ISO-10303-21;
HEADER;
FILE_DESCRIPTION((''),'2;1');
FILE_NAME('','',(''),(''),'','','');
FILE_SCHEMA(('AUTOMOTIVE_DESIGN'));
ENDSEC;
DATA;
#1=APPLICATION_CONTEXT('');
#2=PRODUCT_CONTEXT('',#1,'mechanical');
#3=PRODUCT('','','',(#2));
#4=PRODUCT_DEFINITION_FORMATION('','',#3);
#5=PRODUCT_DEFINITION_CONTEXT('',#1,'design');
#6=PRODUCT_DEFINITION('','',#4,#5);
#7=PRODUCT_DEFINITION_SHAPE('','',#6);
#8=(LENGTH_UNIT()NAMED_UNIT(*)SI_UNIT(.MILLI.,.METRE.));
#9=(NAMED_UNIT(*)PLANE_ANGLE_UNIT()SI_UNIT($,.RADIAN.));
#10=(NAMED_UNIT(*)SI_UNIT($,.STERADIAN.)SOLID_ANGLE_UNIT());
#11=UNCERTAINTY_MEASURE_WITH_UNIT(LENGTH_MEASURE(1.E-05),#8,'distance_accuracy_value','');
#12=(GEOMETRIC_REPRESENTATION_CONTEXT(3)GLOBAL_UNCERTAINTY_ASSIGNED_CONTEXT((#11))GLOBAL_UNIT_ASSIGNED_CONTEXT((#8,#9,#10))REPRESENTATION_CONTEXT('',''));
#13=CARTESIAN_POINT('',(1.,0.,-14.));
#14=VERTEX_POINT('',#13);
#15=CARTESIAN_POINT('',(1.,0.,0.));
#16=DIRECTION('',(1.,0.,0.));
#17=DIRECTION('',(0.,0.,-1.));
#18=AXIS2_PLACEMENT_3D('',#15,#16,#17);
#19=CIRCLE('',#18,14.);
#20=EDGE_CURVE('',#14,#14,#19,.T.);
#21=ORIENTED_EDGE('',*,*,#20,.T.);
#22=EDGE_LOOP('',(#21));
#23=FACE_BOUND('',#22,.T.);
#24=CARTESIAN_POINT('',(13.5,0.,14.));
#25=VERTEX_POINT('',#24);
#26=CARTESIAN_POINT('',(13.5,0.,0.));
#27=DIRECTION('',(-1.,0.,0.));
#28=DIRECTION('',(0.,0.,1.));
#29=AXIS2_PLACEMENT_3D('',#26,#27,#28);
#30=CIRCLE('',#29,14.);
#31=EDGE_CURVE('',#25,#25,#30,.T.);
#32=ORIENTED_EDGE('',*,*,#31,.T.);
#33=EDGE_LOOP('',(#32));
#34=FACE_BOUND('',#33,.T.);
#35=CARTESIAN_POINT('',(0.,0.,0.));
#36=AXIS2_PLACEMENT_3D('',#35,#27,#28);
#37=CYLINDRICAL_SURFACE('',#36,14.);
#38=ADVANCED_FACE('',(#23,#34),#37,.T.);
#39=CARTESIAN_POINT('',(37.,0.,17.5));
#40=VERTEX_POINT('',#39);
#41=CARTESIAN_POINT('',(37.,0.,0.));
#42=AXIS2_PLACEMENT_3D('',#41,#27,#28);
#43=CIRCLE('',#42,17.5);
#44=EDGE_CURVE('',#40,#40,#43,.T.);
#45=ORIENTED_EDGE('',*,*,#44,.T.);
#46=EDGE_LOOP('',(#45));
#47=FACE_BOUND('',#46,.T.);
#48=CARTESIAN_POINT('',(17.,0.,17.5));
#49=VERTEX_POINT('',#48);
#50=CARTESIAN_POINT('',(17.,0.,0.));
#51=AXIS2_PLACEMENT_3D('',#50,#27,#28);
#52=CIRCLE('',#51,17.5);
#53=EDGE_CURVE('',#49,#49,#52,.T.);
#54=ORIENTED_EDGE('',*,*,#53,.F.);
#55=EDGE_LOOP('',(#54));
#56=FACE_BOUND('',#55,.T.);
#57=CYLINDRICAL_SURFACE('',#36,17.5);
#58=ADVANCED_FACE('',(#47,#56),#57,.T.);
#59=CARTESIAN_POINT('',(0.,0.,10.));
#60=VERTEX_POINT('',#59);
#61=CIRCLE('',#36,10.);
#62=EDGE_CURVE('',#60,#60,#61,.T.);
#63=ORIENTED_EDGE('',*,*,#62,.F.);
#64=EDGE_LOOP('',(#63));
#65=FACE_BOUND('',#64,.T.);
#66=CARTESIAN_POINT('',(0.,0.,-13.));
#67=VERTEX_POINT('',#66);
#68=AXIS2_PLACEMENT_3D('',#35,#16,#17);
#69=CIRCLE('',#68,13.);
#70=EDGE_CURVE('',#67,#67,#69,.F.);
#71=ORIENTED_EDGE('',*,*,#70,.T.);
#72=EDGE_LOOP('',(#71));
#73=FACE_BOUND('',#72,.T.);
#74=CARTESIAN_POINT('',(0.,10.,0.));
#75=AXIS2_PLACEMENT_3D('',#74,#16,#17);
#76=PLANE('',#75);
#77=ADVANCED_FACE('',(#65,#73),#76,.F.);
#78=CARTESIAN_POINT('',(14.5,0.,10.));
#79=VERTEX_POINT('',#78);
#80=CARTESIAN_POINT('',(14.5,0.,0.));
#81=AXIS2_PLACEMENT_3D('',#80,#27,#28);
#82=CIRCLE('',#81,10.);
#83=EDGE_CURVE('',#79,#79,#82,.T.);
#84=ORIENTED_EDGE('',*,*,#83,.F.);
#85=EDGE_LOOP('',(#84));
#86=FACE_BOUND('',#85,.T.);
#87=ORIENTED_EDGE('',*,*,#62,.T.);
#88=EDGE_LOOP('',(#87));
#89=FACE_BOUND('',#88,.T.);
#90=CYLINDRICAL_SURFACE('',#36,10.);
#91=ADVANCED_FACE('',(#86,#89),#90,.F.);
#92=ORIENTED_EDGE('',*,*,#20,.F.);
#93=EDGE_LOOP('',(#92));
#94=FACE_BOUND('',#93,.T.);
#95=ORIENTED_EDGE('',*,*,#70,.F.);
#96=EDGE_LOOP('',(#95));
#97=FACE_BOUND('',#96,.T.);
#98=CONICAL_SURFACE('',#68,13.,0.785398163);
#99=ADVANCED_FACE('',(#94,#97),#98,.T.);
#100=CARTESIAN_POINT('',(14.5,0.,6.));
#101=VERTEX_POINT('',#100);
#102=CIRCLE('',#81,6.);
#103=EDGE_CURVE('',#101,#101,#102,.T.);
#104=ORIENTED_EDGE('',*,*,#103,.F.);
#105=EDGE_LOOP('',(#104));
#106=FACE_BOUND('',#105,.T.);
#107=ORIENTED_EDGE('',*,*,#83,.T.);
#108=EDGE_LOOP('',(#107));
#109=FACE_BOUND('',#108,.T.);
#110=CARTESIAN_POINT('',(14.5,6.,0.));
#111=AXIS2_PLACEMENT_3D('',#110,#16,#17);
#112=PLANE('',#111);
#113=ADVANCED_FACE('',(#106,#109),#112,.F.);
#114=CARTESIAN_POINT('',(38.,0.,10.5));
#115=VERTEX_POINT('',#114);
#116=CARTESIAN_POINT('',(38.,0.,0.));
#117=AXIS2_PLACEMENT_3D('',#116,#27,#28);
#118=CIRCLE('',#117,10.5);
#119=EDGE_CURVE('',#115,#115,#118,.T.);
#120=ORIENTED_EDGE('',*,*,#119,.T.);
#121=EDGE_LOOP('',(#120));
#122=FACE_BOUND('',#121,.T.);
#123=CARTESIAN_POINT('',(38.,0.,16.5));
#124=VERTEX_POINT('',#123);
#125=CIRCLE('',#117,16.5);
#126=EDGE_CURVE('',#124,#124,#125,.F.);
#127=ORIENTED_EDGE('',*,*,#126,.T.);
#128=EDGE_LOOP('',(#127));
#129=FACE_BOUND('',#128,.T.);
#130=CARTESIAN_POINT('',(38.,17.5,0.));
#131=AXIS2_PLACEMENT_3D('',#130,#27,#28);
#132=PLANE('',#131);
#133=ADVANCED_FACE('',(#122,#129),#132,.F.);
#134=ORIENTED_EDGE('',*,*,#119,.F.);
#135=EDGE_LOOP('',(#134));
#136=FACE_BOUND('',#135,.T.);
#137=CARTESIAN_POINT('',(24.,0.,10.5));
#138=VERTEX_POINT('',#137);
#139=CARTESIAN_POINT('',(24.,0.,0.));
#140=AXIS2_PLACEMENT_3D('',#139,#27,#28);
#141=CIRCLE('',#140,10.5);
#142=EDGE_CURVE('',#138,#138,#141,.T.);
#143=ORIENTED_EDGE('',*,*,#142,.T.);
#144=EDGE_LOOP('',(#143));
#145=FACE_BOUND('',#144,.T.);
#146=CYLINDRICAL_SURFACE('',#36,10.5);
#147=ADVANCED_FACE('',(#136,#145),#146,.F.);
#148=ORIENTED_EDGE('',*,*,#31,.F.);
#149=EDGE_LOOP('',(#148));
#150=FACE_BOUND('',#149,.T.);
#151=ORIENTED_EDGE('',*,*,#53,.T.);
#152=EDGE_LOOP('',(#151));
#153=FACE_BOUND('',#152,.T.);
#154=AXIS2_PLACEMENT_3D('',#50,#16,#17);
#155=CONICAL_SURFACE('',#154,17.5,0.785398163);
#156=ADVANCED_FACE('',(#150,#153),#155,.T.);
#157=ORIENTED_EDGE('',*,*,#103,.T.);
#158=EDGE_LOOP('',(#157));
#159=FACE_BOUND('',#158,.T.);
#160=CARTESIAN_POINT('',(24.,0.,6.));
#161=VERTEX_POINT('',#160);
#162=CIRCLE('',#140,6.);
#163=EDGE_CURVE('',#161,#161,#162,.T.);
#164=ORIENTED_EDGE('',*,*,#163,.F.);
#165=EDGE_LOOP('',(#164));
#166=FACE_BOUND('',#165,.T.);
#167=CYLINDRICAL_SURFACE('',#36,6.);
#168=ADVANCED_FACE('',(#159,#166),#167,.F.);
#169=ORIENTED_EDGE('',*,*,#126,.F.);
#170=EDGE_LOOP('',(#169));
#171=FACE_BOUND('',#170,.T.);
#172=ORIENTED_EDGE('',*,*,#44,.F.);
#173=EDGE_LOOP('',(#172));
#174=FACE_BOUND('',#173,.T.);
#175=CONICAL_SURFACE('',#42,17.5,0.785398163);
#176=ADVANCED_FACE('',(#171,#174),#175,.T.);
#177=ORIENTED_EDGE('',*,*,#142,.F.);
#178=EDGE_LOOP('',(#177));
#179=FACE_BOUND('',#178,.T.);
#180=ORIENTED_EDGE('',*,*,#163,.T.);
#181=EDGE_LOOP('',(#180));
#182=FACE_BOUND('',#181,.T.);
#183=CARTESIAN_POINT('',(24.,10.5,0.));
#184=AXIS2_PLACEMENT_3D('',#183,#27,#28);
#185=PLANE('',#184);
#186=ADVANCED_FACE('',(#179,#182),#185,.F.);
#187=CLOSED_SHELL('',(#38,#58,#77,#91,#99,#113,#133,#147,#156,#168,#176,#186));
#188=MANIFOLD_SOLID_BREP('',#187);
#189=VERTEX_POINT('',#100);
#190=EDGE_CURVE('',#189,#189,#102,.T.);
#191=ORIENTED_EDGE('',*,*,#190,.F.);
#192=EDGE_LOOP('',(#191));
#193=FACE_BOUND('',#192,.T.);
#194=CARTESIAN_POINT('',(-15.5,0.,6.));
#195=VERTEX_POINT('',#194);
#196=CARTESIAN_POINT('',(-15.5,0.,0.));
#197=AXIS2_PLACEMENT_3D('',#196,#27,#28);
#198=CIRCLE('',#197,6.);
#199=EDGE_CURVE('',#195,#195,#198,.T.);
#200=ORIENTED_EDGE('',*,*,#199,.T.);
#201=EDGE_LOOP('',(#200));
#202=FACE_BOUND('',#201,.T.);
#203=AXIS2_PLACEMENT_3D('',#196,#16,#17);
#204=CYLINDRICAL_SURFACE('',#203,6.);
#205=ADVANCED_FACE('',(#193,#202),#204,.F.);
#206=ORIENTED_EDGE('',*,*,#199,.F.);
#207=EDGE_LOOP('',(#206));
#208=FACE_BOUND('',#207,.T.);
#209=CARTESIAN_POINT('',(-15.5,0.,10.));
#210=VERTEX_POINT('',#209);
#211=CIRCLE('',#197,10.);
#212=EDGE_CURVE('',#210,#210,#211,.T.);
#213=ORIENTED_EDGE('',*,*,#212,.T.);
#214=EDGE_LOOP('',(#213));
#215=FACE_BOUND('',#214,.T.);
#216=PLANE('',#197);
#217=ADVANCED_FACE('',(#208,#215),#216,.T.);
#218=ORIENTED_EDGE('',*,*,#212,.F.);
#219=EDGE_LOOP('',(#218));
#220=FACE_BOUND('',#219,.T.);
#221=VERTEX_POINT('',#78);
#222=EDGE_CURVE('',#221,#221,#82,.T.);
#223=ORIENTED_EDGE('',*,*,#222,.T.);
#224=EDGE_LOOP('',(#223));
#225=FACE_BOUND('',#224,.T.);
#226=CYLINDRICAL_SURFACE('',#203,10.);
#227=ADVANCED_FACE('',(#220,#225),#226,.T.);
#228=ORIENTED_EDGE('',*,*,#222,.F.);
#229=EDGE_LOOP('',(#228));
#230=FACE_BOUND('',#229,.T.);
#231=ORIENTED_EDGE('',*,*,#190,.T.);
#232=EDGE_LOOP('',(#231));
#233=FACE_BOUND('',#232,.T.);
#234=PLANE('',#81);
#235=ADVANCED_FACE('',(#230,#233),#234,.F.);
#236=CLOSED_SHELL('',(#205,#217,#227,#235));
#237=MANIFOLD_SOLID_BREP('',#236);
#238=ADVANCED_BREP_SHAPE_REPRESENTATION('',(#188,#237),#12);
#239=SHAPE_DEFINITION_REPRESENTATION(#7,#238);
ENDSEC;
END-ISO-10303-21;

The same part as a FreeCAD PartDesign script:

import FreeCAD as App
import Part
import Sketcher
Q = App.Units.Quantity


def edges_at(feature, points):
    """Names of the edges that pass closest to the given points."""
    edges = feature.Shape.Edges
    near = lambda p: min(range(len(edges)), key=lambda i: edges[i].distToShape(Part.Vertex(*p))[0])
    return sorted({f"Edge{near(p) + 1}" for p in points})


def add_polygon(sketch, points):
    """Adds a closed chain of lines whose ends are joined by coincident constraints."""
    first, n = sketch.GeometryCount, len(points)
    for a, b in zip(points, points[1:] + points[:1]):
        sketch.addGeometry(Part.LineSegment(App.Vector(*a, 0), App.Vector(*b, 0)), False)
    for i in range(n):
        sketch.addConstraint(Sketcher.Constraint("Coincident", first + i, 2, first + (i + 1) % n, 1))

doc = App.newDocument("Part")
body = doc.addObject("PartDesign::Body", "Body")

# Sketch on XY plane
sketch1 = body.newObject("Sketcher::SketchObject", "Sketch")
sketch1.AttachmentSupport = (doc.getObject("XY_Plane"), [""])
sketch1.MapMode = "FlatFace"
add_polygon(sketch1, [(0, 14), (0, 10), (14.5, 10), (14.5, 6), (24, 6), (24, 10.5), (38, 10.5), (38, 17.5), (17, 17.5), (13.5, 14)])  # lines 0-9
sketch1.addConstraint([
    Sketcher.Constraint("Vertical", 0),
    Sketcher.Constraint("Horizontal", 1),
    Sketcher.Constraint("Vertical", 2),
    Sketcher.Constraint("Horizontal", 3),
    Sketcher.Constraint("Vertical", 4),
    Sketcher.Constraint("Horizontal", 5),
    Sketcher.Constraint("Vertical", 6),
    Sketcher.Constraint("Horizontal", 7),
    Sketcher.Constraint("Horizontal", 9),
    Sketcher.Constraint("PointOnObject", 0, 2, -2),
    Sketcher.Constraint("Equal", 0, 2),
    Sketcher.Constraint("DistanceX", 5, 1, 5, 2, 14.0),
    Sketcher.Constraint("DistanceX", 7, 2, 7, 1, 21.0),
    Sketcher.Constraint("DistanceY", 0, 2, 0, 1, 4.0),
    Sketcher.Constraint("DistanceY", 6, 1, 6, 2, 7.0),
    Sketcher.Constraint("Angle", 8, Q("-135 deg")),
    Sketcher.Constraint("DistanceX", 1, 1, 1, 2, 14.5),
    Sketcher.Constraint("DistanceX", 3, 1, 3, 2, 9.5),
    Sketcher.Constraint("DistanceX", 9, 2, 9, 1, 13.5),
    Sketcher.Constraint("DistanceY", -1, 1, 0, 2, 10.0),
])
revolution = body.newObject("PartDesign::Revolution", "Revolution")
revolution.Profile = sketch1
revolution.ReferenceAxis = (sketch1, ["H_Axis"])
revolution.Angle = 360
doc.recompute()

chamfer = body.newObject("PartDesign::Chamfer", "Chamfer")
chamfer.Base = (revolution, edges_at(revolution, [(38, -17.5, 0), (0, -14, 0)]))
chamfer.Size = 1
body2 = doc.addObject("PartDesign::Body", "Body001")

# Sketch on YZ plane
sketch2 = body2.newObject("Sketcher::SketchObject", "Sketch001")
sketch2.AttachmentSupport = (doc.getObject("YZ_Plane001"), [""])
sketch2.MapMode = "FlatFace"
sketch2.AttachmentOffset = App.Placement(App.Vector(0, 0, 14.5), App.Rotation())
sketch2.addGeometry([
    Part.Circle(App.Vector(0, 0, 0), App.Vector(0, 0, 1), 10),
    Part.Circle(App.Vector(0, 0, 0), App.Vector(0, 0, 1), 6),
], False)
sketch2.addConstraint([
    Sketcher.Constraint("Coincident", 0, 3, -1, 1),
    Sketcher.Constraint("Coincident", 1, 3, -1, 1),
    Sketcher.Constraint("Diameter", 0, 20.0),
    Sketcher.Constraint("Diameter", 1, 12.0),
])
pad1 = body2.newObject("PartDesign::Pad", "Pad")
pad1.Profile = sketch2
pad1.Length = 30
pad1.Reversed = True

doc.recompute()
